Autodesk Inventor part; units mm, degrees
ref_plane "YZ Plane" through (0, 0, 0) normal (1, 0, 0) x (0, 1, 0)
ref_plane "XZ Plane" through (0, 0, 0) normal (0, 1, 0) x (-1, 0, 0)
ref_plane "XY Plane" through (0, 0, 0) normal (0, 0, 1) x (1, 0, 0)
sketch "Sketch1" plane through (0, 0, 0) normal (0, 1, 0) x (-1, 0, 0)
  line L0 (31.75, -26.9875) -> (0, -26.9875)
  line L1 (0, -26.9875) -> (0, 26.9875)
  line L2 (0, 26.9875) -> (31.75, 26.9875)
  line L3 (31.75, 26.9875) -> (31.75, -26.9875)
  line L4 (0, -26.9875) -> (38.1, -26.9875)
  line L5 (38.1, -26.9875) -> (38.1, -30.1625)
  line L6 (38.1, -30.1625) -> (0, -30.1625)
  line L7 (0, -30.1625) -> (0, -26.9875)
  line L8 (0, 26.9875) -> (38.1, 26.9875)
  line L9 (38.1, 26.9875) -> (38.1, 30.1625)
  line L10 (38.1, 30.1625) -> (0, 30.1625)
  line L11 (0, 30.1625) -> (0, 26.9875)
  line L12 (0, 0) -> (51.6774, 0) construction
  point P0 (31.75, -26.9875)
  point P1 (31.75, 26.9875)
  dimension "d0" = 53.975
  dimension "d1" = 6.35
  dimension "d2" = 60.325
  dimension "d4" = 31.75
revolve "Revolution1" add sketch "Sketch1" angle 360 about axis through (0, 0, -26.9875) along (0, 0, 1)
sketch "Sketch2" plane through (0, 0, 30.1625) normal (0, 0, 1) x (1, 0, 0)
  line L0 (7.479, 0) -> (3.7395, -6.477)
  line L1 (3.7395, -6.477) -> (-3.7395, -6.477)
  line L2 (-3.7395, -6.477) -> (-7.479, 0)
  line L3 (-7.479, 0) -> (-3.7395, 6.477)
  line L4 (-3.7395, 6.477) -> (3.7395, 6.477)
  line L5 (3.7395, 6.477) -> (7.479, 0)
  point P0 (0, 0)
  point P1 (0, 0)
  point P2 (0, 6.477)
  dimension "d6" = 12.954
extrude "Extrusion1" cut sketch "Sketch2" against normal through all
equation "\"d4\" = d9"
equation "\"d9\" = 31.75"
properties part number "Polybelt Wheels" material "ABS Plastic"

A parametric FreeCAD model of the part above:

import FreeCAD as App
import Part
import Sketcher
from FreeCAD import Vector
Q = App.Units.Quantity


def add_polygon(sketch, points):
    """Adds a closed chain of lines whose ends are joined by coincident constraints."""
    first, n = sketch.GeometryCount, len(points)
    for a, b in zip(points, points[1:] + points[:1]):
        sketch.addGeometry(Part.LineSegment(App.Vector(*a, 0), App.Vector(*b, 0)), False)
    for i in range(n):
        sketch.addConstraint(Sketcher.Constraint("Coincident", first + i, 2, first + (i + 1) % n, 1))

doc = App.newDocument("Part")
params = doc.addObject("Spreadsheet::Sheet", "Params")
for row, (alias, value) in enumerate([
    ("sketch1_width", "0.25 in"),
    ("sketch1_height", "2.125 in"),
    ("sketch1_height2", "2.375 in"),
    ("revolution_angle", "360 deg"),
], start=1):
    params.set(f"A{row}", alias)
    params.set(f"B{row}", "=" + value)
    params.setAlias(f"B{row}", alias)

body = doc.addObject("PartDesign::Body", "Body")

# Sketch on XZ plane
sketch1 = doc.addObject("Sketcher::SketchObject", "Sketch")
body.addObject(sketch1)
sketch1.AttachmentSupport = (doc.XZ_Plane, [""])
sketch1.MapMode = "FlatFace"
add_polygon(sketch1, [(-38.1, -27), (-31.8, -27), (-31.8, 27), (-38.1, 27), (-38.1, 30.2), (0, 30.2), (0, -30.2), (-38.1, -30.2)])  # lines 0-7
sketch1.addConstraint(Sketcher.Constraint("Horizontal", 0))
sketch1.addConstraint(Sketcher.Constraint("Vertical", 1))
sketch1.addConstraint(Sketcher.Constraint("Horizontal", 2))
sketch1.addConstraint(Sketcher.Constraint("Vertical", 3))
sketch1.addConstraint(Sketcher.Constraint("Horizontal", 4))
sketch1.addConstraint(Sketcher.Constraint("Vertical", 5))
sketch1.addConstraint(Sketcher.Constraint("Horizontal", 6))
sketch1.addConstraint(Sketcher.Constraint("Vertical", 7))
sketch1.addConstraint(Sketcher.Constraint("Symmetric", 4, 2, 5, 2, -1, 1))
sketch1.addConstraint(Sketcher.Constraint("Symmetric", 2, 2, 7, 2, -1))
sketch1.addConstraint(Sketcher.Constraint("DistanceX", 0, 1, 0, 2, Q("0.25 in")))
sketch1.addConstraint(Sketcher.Constraint("DistanceY", 1, 1, 1, 2, Q("2.125 in")))
sketch1.addConstraint(Sketcher.Constraint("DistanceY", 5, 2, 5, 1, Q("2.375 in")))
sketch1.addConstraint(Sketcher.Constraint("DistanceX", 0, 2, -1, 1, Q("1.25 in")))
sketch1.setExpression("Constraints[18]", "Params.sketch1_width")
sketch1.setExpression("Constraints[19]", "Params.sketch1_height")
sketch1.setExpression("Constraints[20]", "Params.sketch1_height2")
revolution = doc.addObject("PartDesign::Revolution", "Revolution")
body.addObject(revolution)
revolution.Profile = sketch1
revolution.ReferenceAxis = (sketch1, ["V_Axis"])
revolution.setExpression("Angle", "Params.revolution_angle")

# Sketch on XY plane
sketch2 = doc.addObject("Sketcher::SketchObject", "Sketch001")
body.addObject(sketch2)
sketch2.AttachmentSupport = (doc.XY_Plane, [""])
sketch2.MapMode = "FlatFace"
sketch2.AttachmentOffset = App.Placement(Vector(0, 0, 1.1875 * 25.4), App.Rotation())
add_polygon(sketch2, [(4, -6), (7, 0), (4, 6), (-4, 6), (-7, 0), (-4, -6)])  # lines 0-5
sketch2.addConstraint(Sketcher.Constraint("Horizontal", 2))
sketch2.addConstraint(Sketcher.Constraint("Horizontal", 5))
sketch2.addConstraint(Sketcher.Constraint("Symmetric", 0, 2, 3, 2, -1, 1))
sketch2.addConstraint(Sketcher.Constraint("Symmetric", 1, 2, 4, 2, -1, 1))
sketch2.addConstraint(Sketcher.Constraint("PointOnObject", 0, 2, -1))
sketch2.addConstraint(Sketcher.Constraint("Parallel", 0, 3))
sketch2.addConstraint(Sketcher.Constraint("Vertical", 2, 2, 4, 2))
sketch2.addConstraint(Sketcher.Constraint("DistanceY", 4, 2, 2, 2, Q("0.51 in")))
sketch2.addConstraint(Sketcher.Constraint("Angle", 0, Q("60 deg")))
sketch2.addConstraint(Sketcher.Constraint("DistanceX", 2, 2, 2, 1, Q("7.479 mm")))
pocket1 = doc.addObject("PartDesign::Pocket", "Pocket")
body.addObject(pocket1)
pocket1.Profile = sketch2
pocket1.Type = "ThroughAll"

doc.recompute()
